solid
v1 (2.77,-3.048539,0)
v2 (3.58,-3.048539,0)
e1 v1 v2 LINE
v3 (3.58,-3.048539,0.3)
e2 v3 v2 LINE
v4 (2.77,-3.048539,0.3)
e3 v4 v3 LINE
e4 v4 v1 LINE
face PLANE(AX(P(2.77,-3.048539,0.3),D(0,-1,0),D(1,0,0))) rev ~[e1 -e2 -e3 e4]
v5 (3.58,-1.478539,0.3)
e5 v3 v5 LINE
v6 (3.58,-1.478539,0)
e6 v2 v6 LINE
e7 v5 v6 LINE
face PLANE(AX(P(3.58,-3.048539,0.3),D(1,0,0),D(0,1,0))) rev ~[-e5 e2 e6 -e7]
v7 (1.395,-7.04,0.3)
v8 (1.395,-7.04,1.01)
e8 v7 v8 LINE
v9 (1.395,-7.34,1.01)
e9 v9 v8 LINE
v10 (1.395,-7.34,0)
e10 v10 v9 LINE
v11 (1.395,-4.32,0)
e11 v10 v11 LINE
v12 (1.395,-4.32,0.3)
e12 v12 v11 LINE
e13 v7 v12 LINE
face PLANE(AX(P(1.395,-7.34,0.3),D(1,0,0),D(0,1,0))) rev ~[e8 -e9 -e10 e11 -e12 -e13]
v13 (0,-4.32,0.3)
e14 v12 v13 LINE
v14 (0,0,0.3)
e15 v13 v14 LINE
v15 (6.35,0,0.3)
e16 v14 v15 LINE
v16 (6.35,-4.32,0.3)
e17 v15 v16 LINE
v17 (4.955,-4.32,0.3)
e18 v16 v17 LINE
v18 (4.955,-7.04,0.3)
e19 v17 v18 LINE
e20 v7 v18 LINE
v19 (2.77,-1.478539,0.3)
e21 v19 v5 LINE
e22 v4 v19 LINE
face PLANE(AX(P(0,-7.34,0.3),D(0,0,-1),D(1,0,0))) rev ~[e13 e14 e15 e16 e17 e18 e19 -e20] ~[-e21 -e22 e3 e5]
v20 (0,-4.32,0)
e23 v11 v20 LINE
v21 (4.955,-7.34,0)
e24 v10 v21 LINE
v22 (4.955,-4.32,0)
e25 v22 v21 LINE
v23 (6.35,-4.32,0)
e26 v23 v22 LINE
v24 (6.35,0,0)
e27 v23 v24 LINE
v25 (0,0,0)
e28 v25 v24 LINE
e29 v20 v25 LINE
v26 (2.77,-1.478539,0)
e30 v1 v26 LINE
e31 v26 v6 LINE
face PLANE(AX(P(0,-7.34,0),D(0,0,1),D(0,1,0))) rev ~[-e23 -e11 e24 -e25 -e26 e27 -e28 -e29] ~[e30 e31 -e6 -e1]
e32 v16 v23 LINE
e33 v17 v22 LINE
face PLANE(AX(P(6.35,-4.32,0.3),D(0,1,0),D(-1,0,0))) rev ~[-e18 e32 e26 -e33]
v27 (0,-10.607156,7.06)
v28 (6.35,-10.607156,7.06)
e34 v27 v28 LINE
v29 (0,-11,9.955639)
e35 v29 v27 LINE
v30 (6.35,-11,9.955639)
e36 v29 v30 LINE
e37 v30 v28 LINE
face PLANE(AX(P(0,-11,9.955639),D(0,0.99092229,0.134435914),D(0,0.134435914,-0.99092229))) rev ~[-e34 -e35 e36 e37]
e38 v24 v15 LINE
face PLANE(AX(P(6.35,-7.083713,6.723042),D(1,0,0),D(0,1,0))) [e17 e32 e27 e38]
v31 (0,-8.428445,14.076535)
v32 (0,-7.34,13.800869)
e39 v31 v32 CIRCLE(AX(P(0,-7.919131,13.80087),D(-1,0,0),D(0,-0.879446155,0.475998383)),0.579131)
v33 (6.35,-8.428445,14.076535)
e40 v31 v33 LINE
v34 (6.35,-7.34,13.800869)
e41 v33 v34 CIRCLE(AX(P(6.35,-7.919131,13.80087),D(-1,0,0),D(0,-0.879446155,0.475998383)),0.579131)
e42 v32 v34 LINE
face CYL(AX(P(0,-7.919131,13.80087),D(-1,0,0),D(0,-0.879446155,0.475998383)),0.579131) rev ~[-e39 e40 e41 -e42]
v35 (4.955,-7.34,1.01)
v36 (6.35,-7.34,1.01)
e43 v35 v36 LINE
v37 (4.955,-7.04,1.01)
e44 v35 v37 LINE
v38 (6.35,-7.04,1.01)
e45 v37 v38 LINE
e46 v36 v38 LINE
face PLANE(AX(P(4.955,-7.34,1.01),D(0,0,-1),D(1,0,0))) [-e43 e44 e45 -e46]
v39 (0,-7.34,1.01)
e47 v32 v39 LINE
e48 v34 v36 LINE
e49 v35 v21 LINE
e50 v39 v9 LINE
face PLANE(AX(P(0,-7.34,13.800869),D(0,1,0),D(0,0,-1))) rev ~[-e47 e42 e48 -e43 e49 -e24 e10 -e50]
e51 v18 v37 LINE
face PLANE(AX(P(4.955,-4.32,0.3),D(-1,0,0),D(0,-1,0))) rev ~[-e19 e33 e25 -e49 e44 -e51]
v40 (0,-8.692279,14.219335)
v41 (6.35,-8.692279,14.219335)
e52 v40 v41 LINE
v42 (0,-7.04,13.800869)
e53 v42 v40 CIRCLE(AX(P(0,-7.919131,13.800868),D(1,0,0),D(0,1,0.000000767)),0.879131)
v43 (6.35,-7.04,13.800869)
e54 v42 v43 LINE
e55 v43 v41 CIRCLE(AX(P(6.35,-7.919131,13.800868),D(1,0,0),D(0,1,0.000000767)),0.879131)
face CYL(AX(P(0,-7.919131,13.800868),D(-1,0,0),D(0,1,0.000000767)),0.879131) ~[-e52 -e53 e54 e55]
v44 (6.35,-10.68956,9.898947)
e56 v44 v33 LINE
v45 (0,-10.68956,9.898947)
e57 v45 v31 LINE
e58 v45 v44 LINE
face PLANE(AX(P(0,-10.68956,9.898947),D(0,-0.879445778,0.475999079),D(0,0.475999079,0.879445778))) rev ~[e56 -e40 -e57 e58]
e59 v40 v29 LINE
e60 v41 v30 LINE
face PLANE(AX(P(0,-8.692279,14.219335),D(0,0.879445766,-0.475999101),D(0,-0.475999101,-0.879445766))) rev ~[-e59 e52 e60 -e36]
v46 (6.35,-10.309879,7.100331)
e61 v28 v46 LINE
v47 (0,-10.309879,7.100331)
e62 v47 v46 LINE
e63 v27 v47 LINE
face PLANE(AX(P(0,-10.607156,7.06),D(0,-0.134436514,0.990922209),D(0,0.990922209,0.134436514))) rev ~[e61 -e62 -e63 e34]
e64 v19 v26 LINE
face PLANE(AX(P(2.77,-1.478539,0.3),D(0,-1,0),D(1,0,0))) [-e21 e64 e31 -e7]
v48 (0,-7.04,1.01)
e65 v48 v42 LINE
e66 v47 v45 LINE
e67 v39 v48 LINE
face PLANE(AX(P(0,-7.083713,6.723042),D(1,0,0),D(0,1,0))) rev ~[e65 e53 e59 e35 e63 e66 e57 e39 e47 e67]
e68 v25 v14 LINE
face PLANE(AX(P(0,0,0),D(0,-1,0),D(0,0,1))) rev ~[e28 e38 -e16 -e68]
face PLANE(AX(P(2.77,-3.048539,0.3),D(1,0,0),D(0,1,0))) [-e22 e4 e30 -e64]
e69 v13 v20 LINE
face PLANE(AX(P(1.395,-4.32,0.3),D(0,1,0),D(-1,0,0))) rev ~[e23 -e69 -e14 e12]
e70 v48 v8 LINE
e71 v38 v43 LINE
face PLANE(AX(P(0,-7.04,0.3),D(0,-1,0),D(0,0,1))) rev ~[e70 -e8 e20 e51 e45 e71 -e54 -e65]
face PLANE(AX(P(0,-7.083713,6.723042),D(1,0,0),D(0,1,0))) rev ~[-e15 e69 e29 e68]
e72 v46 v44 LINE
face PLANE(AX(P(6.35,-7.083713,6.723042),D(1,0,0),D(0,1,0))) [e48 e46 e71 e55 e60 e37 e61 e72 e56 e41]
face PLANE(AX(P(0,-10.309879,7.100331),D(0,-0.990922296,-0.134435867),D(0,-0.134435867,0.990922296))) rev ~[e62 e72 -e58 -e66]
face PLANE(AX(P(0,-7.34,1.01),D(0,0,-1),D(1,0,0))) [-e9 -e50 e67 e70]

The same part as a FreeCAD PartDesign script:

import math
import FreeCAD as App
import Part
import Sketcher

V = App.Vector
Q = App.Units.Quantity

doc = App.newDocument("Part")
body = doc.addObject("PartDesign::Body", "Body")

# Sketch on YZ plane
sketch1 = body.newObject("Sketcher::SketchObject", "Sketch")
sketch1.AttachmentSupport = (doc.getObject("YZ_Plane"), [""])
sketch1.MapMode = "FlatFace"
sketch1.addGeometry([
    Part.LineSegment(V(-7.34, 0, 0), V(0, 0, 0)),  # 0
    Part.LineSegment(V(0, 0, 0), V(0, 0.3, 0)),  # 1
    Part.LineSegment(V(0, 0.3, 0), V(-7.04, 0.3, 0)),  # 2
    Part.LineSegment(V(-7.04, 0.3, 0), V(-7.04, 13.8, 0)),  # 3
    Part.ArcOfCircle(Part.Circle(V(-7.92, 13.8, 0), V(0, 0, 1), 0.88), math.radians(0), math.radians(152)),  # 4
    Part.LineSegment(V(-8.69, 14.22, 0), V(-11, 9.96, 0)),  # 5
    Part.LineSegment(V(-11, 9.96, 0), V(-10.61, 7.06, 0)),  # 6
    Part.LineSegment(V(-10.61, 7.06, 0), V(-10.31, 7.1, 0)),  # 7
    Part.LineSegment(V(-10.31, 7.1, 0), V(-10.69, 9.9, 0)),  # 8
    Part.LineSegment(V(-10.69, 9.9, 0), V(-8.43, 14.08, 0)),  # 9
    Part.ArcOfCircle(Part.Circle(V(-7.92, 13.8, 0), V(0, 0, 1), 0.58), math.radians(0), math.radians(152)),  # 10
    Part.LineSegment(V(-7.34, 13.8, 0), V(-7.34, 0, 0)),  # 11
], False)
sketch1.addConstraint([
    Sketcher.Constraint("Coincident", 0, 2, 1, 1),
    Sketcher.Constraint("Coincident", 1, 2, 2, 1),
    Sketcher.Constraint("Coincident", 2, 2, 3, 1),
    Sketcher.Constraint("Tangent", 3, 2, 4, 1),
    Sketcher.Constraint("Tangent", 4, 2, 5, 1),
    Sketcher.Constraint("Coincident", 5, 2, 6, 1),
    Sketcher.Constraint("Coincident", 6, 2, 7, 1),
    Sketcher.Constraint("Coincident", 7, 2, 8, 1),
    Sketcher.Constraint("Coincident", 8, 2, 9, 1),
    Sketcher.Constraint("Tangent", 9, 2, 10, 2),
    Sketcher.Constraint("Tangent", 10, 1, 11, 1),
    Sketcher.Constraint("Coincident", 11, 2, 0, 1),
    Sketcher.Constraint("Horizontal", 0),
    Sketcher.Constraint("Vertical", 1),
    Sketcher.Constraint("Horizontal", 2),
    Sketcher.Constraint("Vertical", 3),
    Sketcher.Constraint("Vertical", 11),
    Sketcher.Constraint("Coincident", 0, 2, -1, 1),
    Sketcher.Constraint("Coincident", 10, 3, 4, 3),
    Sketcher.Constraint("Perpendicular", 6, 7),
    Sketcher.Constraint("Perpendicular", 7, 8),
    Sketcher.Constraint("Parallel", 5, 9),
    Sketcher.Constraint("DistanceY", 1, 1, 1, 2, Q("0.3 mm")),
    Sketcher.Constraint("DistanceX", 5, 2, -1, 1, Q("11 mm")),
    Sketcher.Constraint("Distance", 7, Q("0.3 mm")),
    Sketcher.Constraint("DistanceX", 0, 1, 0, 2, Q("7.34 mm")),
    Sketcher.Constraint("DistanceX", 2, 2, 2, 1, Q("7.04 mm")),
    Sketcher.Constraint("DistanceY", -1, 1, 6, 2, Q("7.06 mm")),
    Sketcher.Constraint("Radius", 4, Q("0.879131 mm")),
    Sketcher.Constraint("DistanceY", 3, 1, 3, 2, Q("13.500869 mm")),
    Sketcher.Constraint("DistanceX", 7, 2, 4, 2, Q("1.6176 mm")),
    Sketcher.Constraint("DistanceY", 9, 2, 4, 2, Q("0.1428 mm")),
])
pad1 = body.newObject("PartDesign::Pad", "Pad")
pad1.Profile = sketch1
pad1.Length = 6.35

# Sketch on XZ plane
sketch2 = body.newObject("Sketcher::SketchObject", "Sketch001")
sketch2.AttachmentSupport = (doc.getObject("XZ_Plane"), [""])
sketch2.MapMode = "FlatFace"
sketch2.AttachmentOffset = App.Placement(V(0, 0, 7.34), App.Rotation())
sketch2.addGeometry([
    Part.LineSegment(V(5, 1, 0), V(5, 0.3, 0)),  # 0
    Part.LineSegment(V(5, 0.3, 0), V(6.3, 0.3, 0)),  # 1
    Part.LineSegment(V(6.3, 0.3, 0), V(6.3, 1, 0)),  # 2
    Part.LineSegment(V(6.3, 1, 0), V(5, 1, 0)),  # 3
    Part.LineSegment(V(0, 1, 0), V(0, 0.3, 0)),  # 4
    Part.LineSegment(V(0, 0.3, 0), V(1.4, 0.3, 0)),  # 5
    Part.LineSegment(V(1.4, 0.3, 0), V(1.4, 1, 0)),  # 6
    Part.LineSegment(V(1.4, 1, 0), V(0, 1, 0)),  # 7
], False)
sketch2.addConstraint([
    Sketcher.Constraint("Coincident", 0, 2, 1, 1),
    Sketcher.Constraint("Coincident", 1, 2, 2, 1),
    Sketcher.Constraint("Coincident", 2, 2, 3, 1),
    Sketcher.Constraint("Coincident", 3, 2, 0, 1),
    Sketcher.Constraint("Coincident", 4, 2, 5, 1),
    Sketcher.Constraint("Coincident", 5, 2, 6, 1),
    Sketcher.Constraint("Coincident", 6, 2, 7, 1),
    Sketcher.Constraint("Coincident", 7, 2, 4, 1),
    Sketcher.Constraint("Vertical", 0),
    Sketcher.Constraint("Horizontal", 1),
    Sketcher.Constraint("Vertical", 2),
    Sketcher.Constraint("Horizontal", 3),
    Sketcher.Constraint("Vertical", 4),
    Sketcher.Constraint("Horizontal", 5),
    Sketcher.Constraint("Vertical", 6),
    Sketcher.Constraint("Horizontal", 7),
    Sketcher.Constraint("PointOnObject", 4, 2, -2),
    Sketcher.Constraint("Horizontal", 1, 2, 4, 2),
    Sketcher.Constraint("Horizontal", 3, 2, 6, 2),
    Sketcher.Constraint("Equal", 3, 5),
    Sketcher.Constraint("DistanceY", 0, 2, 0, 1, Q("0.71 mm")),
    Sketcher.Constraint("DistanceY", -1, 1, 0, 2, Q("0.3 mm")),
    Sketcher.Constraint("DistanceX", 1, 1, 1, 2, Q("1.395 mm")),
    Sketcher.Constraint("DistanceX", -1, 1, 1, 2, Q("6.35 mm")),
])
pocket1 = body.newObject("PartDesign::Pocket", "Pocket")
pocket1.Profile = sketch2
pocket1.Type = "ThroughAll"

# Sketch on XY plane
sketch3 = body.newObject("Sketcher::SketchObject", "Sketch002")
sketch3.AttachmentSupport = (doc.getObject("XY_Plane"), [""])
sketch3.MapMode = "FlatFace"
sketch3.AttachmentOffset = App.Placement(V(0, 0, 0.3), App.Rotation())
sketch3.addGeometry([
    Part.LineSegment(V(0, -4.3, 0), V(0, -7.3, 0)),  # 0
    Part.LineSegment(V(0, -7.3, 0), V(1.4, -7.3, 0)),  # 1
    Part.LineSegment(V(1.4, -7.3, 0), V(1.4, -4.3, 0)),  # 2
    Part.LineSegment(V(1.4, -4.3, 0), V(0, -4.3, 0)),  # 3
    Part.LineSegment(V(5, -4.3, 0), V(5, -7.3, 0)),  # 4
    Part.LineSegment(V(5, -7.3, 0), V(6.3, -7.3, 0)),  # 5
    Part.LineSegment(V(6.3, -7.3, 0), V(6.3, -4.3, 0)),  # 6
    Part.LineSegment(V(6.3, -4.3, 0), V(5, -4.3, 0)),  # 7
    Part.LineSegment(V(2.8, -1.5, 0), V(2.8, -3, 0)),  # 8
    Part.LineSegment(V(2.8, -3, 0), V(3.6, -3, 0)),  # 9
    Part.LineSegment(V(3.6, -3, 0), V(3.6, -1.5, 0)),  # 10
    Part.LineSegment(V(3.6, -1.5, 0), V(2.8, -1.5, 0)),  # 11
], False)
sketch3.addConstraint([
    Sketcher.Constraint("Coincident", 0, 2, 1, 1),
    Sketcher.Constraint("Coincident", 1, 2, 2, 1),
    Sketcher.Constraint("Coincident", 2, 2, 3, 1),
    Sketcher.Constraint("Coincident", 3, 2, 0, 1),
    Sketcher.Constraint("Coincident", 4, 2, 5, 1),
    Sketcher.Constraint("Coincident", 5, 2, 6, 1),
    Sketcher.Constraint("Coincident", 6, 2, 7, 1),
    Sketcher.Constraint("Coincident", 7, 2, 4, 1),
    Sketcher.Constraint("Coincident", 8, 2, 9, 1),
    Sketcher.Constraint("Coincident", 9, 2, 10, 1),
    Sketcher.Constraint("Coincident", 10, 2, 11, 1),
    Sketcher.Constraint("Coincident", 11, 2, 8, 1),
    Sketcher.Constraint("Vertical", 0),
    Sketcher.Constraint("Horizontal", 1),
    Sketcher.Constraint("Vertical", 2),
    Sketcher.Constraint("Horizontal", 3),
    Sketcher.Constraint("Vertical", 4),
    Sketcher.Constraint("Horizontal", 5),
    Sketcher.Constraint("Vertical", 6),
    Sketcher.Constraint("Horizontal", 7),
    Sketcher.Constraint("Vertical", 8),
    Sketcher.Constraint("Horizontal", 9),
    Sketcher.Constraint("Vertical", 10),
    Sketcher.Constraint("Horizontal", 11),
    Sketcher.Constraint("PointOnObject", 0, 2, -2),
    Sketcher.Constraint("Horizontal", 1, 2, 4, 2),
    Sketcher.Constraint("Horizontal", 3, 2, 6, 2),
    Sketcher.Constraint("Equal", 3, 5),
    Sketcher.Constraint("DistanceX", 9, 1, 9, 2, Q("0.81 mm")),
    Sketcher.Constraint("DistanceY", 0, 2, 0, 1, Q("3.02 mm")),
    Sketcher.Constraint("DistanceY", 8, 2, 8, 1, Q("1.57 mm")),
    Sketcher.Constraint("DistanceX", 1, 1, 1, 2, Q("1.395 mm")),
    Sketcher.Constraint("DistanceY", 0, 2, -1, 1, Q("7.34 mm")),
    Sketcher.Constraint("DistanceX", -1, 1, 5, 2, Q("6.35 mm")),
    Sketcher.Constraint("DistanceX", -1, 1, 8, 2, Q("2.77 mm")),
    Sketcher.Constraint("DistanceY", 8, 2, -1, 1, Q("3.048539 mm")),
])
pocket2 = body.newObject("PartDesign::Pocket", "Pocket001")
pocket2.Profile = sketch3
pocket2.Type = "ThroughAll"

doc.recompute()
